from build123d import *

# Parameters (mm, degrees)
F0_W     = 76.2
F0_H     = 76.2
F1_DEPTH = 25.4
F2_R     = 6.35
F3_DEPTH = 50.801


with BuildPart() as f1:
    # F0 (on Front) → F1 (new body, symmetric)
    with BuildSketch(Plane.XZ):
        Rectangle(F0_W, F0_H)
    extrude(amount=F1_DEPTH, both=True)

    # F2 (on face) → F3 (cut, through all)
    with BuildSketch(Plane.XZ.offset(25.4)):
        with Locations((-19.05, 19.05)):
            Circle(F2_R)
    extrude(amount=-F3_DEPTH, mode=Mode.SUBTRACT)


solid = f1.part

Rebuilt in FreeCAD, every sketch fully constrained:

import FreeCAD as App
import Part
import Sketcher

V = App.Vector
Q = App.Units.Quantity

doc = App.newDocument("Part")
body = doc.addObject("PartDesign::Body", "Body")

# Sketch on XZ plane
sketch1 = body.newObject("Sketcher::SketchObject", "Sketch")
sketch1.AttachmentSupport = (doc.getObject("XZ_Plane"), [""])
sketch1.MapMode = "FlatFace"
sketch1.addGeometry(Part.LineSegment(V(-38, 38, 0), V(-38, -38, 0)), False)
sketch1.addGeometry(Part.LineSegment(V(-38, -38, 0), V(38, -38, 0)), False)
sketch1.addGeometry(Part.LineSegment(V(38, -38, 0), V(38, 38, 0)), False)
sketch1.addGeometry(Part.LineSegment(V(38, 38, 0), V(-38, 38, 0)), False)
sketch1.addConstraint(Sketcher.Constraint("Coincident", 0, 2, 1, 1))
sketch1.addConstraint(Sketcher.Constraint("Coincident", 1, 2, 2, 1))
sketch1.addConstraint(Sketcher.Constraint("Coincident", 2, 2, 3, 1))
sketch1.addConstraint(Sketcher.Constraint("Coincident", 3, 2, 0, 1))
sketch1.addConstraint(Sketcher.Constraint("Vertical", 0))
sketch1.addConstraint(Sketcher.Constraint("Horizontal", 1))
sketch1.addConstraint(Sketcher.Constraint("Vertical", 2))
sketch1.addConstraint(Sketcher.Constraint("Horizontal", 3))
sketch1.addConstraint(Sketcher.Constraint("Symmetric", 0, 2, 2, 2, -1, 1))
sketch1.addConstraint(Sketcher.Constraint("Equal", 3, 0))
sketch1.addConstraint(Sketcher.Constraint("DistanceX", 1, 1, 1, 2, Q("3 in")))
pad1 = body.newObject("PartDesign::Pad", "Pad")
pad1.Profile = sketch1
pad1.Length = Q("2 in")
pad1.Midplane = True

# Sketch on XZ plane
sketch2 = body.newObject("Sketcher::SketchObject", "Sketch001")
sketch2.AttachmentSupport = (doc.getObject("XZ_Plane"), [""])
sketch2.MapMode = "FlatFace"
sketch2.AttachmentOffset = App.Placement(V(0, 0, 1 * 25.4), App.Rotation())
sketch2.addGeometry(Part.Circle(V(-19, 19, 0), V(0, 0, 1), 6), False)
sketch2.addConstraint(Sketcher.Constraint("Diameter", 0, Q("0.5 in")))
sketch2.addConstraint(Sketcher.Constraint("DistanceX", 0, 3, -1, 1, Q("0.75 in")))
sketch2.addConstraint(Sketcher.Constraint("DistanceY", -1, 1, 0, 3, Q("0.75 in")))
pocket1 = body.newObject("PartDesign::Pocket", "Pocket")
pocket1.Profile = sketch2
pocket1.Type = "ThroughAll"

doc.recompute()
